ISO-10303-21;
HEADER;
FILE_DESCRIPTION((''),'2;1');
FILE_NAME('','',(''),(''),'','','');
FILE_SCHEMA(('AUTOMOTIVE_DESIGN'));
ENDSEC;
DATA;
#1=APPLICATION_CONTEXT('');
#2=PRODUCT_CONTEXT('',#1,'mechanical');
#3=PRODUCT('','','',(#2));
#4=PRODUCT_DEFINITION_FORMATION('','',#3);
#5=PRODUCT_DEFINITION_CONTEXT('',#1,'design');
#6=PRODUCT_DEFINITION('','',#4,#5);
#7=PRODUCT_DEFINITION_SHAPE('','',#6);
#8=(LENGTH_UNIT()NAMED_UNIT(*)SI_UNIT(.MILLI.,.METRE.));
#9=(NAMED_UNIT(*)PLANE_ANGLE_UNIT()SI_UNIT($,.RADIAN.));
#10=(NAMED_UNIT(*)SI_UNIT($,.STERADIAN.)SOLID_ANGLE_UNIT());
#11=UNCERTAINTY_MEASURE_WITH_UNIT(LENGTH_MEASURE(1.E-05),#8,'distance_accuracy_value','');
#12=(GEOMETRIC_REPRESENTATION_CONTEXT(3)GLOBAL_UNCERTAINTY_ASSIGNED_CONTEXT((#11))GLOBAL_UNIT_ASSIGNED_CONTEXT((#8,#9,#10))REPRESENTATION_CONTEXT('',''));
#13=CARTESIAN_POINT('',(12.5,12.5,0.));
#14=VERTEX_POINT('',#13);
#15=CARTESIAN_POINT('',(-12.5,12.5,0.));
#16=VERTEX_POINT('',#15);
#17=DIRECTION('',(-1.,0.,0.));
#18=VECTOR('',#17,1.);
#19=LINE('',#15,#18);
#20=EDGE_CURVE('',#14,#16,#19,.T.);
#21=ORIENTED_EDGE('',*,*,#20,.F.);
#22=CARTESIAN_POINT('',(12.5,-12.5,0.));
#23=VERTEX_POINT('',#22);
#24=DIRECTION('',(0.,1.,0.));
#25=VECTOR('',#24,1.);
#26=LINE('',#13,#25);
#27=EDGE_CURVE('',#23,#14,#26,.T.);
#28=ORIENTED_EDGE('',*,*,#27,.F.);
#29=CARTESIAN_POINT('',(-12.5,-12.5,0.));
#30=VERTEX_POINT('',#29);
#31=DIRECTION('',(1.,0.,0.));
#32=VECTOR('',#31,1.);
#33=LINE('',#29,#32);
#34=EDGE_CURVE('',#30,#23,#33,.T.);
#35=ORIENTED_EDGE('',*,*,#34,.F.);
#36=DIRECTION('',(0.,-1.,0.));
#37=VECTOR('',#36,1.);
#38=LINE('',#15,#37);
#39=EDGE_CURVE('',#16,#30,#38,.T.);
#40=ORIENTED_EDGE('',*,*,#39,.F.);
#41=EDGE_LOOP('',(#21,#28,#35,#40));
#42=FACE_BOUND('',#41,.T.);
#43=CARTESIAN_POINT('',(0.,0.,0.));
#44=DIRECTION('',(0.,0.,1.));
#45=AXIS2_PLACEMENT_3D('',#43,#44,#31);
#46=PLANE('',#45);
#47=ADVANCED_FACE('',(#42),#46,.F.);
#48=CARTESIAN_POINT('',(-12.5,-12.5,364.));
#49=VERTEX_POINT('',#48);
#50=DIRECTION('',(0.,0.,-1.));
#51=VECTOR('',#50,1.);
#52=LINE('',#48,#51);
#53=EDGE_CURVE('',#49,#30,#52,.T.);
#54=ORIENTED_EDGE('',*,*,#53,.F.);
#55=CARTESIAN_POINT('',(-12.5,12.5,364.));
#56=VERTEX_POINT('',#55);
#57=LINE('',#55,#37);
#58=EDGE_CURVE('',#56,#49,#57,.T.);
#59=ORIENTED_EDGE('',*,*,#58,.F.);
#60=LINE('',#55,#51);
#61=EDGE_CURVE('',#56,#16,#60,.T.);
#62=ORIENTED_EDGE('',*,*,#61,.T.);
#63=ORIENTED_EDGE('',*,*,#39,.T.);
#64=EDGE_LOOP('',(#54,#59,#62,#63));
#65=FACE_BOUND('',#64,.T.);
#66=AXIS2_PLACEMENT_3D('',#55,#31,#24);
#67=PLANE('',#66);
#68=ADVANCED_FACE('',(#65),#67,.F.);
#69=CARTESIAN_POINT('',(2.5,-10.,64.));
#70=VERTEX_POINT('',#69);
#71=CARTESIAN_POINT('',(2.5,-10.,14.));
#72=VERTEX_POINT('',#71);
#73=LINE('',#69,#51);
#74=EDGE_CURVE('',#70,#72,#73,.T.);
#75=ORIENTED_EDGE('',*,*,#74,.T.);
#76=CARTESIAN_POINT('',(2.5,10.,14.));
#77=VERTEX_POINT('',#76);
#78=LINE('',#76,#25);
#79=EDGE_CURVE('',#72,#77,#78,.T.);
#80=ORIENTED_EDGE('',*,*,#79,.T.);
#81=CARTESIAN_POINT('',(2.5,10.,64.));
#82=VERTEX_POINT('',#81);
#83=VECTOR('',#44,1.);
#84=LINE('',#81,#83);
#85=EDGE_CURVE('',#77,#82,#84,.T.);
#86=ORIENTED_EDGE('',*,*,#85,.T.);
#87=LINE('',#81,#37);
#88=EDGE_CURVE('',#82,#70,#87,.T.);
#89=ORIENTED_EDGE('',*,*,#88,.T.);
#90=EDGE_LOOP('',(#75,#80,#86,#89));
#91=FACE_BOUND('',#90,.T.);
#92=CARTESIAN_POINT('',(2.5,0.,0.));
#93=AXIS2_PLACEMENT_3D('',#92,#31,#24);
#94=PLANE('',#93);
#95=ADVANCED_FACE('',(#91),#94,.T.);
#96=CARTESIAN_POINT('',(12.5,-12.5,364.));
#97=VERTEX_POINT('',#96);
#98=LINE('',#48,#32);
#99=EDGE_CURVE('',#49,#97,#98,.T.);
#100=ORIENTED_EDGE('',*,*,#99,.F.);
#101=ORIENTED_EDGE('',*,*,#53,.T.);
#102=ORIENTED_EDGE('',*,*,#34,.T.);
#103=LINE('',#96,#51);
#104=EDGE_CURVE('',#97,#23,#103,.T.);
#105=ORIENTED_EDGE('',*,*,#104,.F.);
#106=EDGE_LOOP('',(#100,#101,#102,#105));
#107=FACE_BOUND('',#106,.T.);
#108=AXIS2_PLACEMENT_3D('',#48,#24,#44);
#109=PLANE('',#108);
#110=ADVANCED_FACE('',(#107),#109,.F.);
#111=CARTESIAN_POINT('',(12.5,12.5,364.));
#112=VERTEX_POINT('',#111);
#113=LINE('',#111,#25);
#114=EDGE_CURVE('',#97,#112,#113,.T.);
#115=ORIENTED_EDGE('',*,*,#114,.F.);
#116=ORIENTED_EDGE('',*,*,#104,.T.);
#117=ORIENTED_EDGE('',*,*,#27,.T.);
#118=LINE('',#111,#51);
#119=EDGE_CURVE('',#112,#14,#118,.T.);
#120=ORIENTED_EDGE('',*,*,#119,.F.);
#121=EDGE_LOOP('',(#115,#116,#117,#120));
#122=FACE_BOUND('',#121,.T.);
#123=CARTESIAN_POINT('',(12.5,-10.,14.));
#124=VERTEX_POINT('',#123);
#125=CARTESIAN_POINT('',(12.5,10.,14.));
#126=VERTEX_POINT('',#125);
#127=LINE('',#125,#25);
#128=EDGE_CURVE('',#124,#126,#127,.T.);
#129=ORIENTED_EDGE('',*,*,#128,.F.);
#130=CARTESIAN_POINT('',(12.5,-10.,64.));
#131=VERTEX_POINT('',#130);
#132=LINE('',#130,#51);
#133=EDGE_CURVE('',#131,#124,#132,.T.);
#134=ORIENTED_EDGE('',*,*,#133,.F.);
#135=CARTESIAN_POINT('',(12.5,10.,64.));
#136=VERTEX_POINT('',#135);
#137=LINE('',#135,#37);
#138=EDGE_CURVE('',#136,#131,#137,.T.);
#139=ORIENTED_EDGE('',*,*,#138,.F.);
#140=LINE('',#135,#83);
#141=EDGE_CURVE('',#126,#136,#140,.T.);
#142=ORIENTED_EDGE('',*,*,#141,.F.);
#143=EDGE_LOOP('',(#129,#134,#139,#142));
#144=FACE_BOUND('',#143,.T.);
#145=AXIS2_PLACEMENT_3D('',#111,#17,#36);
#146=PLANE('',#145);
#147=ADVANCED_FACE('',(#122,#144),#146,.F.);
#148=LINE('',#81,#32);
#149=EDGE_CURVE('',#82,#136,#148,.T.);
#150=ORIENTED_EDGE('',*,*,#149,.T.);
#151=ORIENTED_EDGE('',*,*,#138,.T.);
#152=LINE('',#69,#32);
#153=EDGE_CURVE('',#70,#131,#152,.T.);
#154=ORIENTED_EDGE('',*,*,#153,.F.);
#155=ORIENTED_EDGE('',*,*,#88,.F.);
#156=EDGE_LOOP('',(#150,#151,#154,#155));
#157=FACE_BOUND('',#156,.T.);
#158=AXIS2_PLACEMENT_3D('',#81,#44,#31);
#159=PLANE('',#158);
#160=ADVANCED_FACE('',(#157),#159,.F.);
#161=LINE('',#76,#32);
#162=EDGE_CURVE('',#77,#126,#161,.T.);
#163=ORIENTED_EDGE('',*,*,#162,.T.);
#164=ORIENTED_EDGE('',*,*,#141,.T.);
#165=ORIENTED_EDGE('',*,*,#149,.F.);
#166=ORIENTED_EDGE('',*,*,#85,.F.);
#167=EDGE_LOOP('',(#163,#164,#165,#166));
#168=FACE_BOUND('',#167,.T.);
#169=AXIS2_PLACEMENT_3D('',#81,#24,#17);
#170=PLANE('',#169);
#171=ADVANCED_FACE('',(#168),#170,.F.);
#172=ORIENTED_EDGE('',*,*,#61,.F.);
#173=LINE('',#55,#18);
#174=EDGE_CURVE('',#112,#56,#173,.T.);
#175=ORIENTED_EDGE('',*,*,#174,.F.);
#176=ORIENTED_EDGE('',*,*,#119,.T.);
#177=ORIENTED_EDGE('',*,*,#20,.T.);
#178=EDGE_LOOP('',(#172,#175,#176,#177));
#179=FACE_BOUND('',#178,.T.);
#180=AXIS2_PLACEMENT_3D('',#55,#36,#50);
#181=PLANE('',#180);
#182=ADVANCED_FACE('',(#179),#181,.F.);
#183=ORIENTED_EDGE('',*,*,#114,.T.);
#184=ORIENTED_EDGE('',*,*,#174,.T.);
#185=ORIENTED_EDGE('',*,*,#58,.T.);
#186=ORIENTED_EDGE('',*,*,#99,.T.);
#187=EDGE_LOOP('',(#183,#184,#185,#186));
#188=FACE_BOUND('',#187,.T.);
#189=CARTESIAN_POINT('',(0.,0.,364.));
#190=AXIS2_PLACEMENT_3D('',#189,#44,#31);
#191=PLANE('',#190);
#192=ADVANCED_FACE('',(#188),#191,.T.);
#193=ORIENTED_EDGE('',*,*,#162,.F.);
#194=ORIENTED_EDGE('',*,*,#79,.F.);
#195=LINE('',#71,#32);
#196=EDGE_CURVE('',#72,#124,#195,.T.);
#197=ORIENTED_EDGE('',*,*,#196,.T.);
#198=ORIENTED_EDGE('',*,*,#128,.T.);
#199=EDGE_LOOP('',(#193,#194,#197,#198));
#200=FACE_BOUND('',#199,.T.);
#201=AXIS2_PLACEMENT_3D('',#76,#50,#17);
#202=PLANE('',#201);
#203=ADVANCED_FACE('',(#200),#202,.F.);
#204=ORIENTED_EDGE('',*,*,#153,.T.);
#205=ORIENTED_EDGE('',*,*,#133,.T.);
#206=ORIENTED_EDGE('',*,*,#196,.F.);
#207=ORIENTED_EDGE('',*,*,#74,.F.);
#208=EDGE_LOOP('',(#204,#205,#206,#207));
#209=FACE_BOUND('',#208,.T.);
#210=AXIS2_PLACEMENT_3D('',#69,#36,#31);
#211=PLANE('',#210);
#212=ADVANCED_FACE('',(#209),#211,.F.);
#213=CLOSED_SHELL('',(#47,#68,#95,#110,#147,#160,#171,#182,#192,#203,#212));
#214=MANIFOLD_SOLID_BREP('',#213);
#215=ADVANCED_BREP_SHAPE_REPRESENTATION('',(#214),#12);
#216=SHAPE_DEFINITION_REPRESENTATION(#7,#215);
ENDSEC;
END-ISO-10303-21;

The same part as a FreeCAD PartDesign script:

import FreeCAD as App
import Part
import Sketcher

V = App.Vector
Q = App.Units.Quantity


def add_polygon(sketch, points):
    """Adds a closed chain of lines whose ends are joined by coincident constraints."""
    first, n = sketch.GeometryCount, len(points)
    for a, b in zip(points, points[1:] + points[:1]):
        sketch.addGeometry(Part.LineSegment(App.Vector(*a, 0), App.Vector(*b, 0)), False)
    for i in range(n):
        sketch.addConstraint(Sketcher.Constraint("Coincident", first + i, 2, first + (i + 1) % n, 1))

doc = App.newDocument("Part")
body = doc.addObject("PartDesign::Body", "Body")

# Sketch on XY plane
sketch1 = body.newObject("Sketcher::SketchObject", "Sketch")
sketch1.AttachmentSupport = (doc.getObject("XY_Plane"), [""])
sketch1.MapMode = "FlatFace"
add_polygon(sketch1, [(-12, 12), (-12, -12), (12, -12), (12, 12)])  # lines 0-3
sketch1.addConstraint(Sketcher.Constraint("Vertical", 0))
sketch1.addConstraint(Sketcher.Constraint("Horizontal", 1))
sketch1.addConstraint(Sketcher.Constraint("Vertical", 2))
sketch1.addConstraint(Sketcher.Constraint("Horizontal", 3))
sketch1.addConstraint(Sketcher.Constraint("Symmetric", 0, 2, 2, 2, -1, 1))
sketch1.addConstraint(Sketcher.Constraint("Equal", 3, 0))
sketch1.addConstraint(Sketcher.Constraint("DistanceX", 1, 1, 1, 2, Q("25 mm")))
pad1 = body.newObject("PartDesign::Pad", "Pad")
pad1.Profile = sketch1
pad1.Length = 364

# Sketch on YZ plane
sketch2 = body.newObject("Sketcher::SketchObject", "Sketch001")
sketch2.AttachmentSupport = (doc.getObject("YZ_Plane"), [""])
sketch2.MapMode = "FlatFace"
sketch2.AttachmentOffset = App.Placement(V(0, 0, 12.5), App.Rotation())
add_polygon(sketch2, [(10, 64), (-10, 64), (-10, 14), (10, 14)])  # lines 0-3
sketch2.addConstraint(Sketcher.Constraint("Horizontal", 0))
sketch2.addConstraint(Sketcher.Constraint("Vertical", 1))
sketch2.addConstraint(Sketcher.Constraint("Horizontal", 2))
sketch2.addConstraint(Sketcher.Constraint("Vertical", 3))
sketch2.addConstraint(Sketcher.Constraint("DistanceX", 0, 2, 0, 1, Q("20 mm")))
sketch2.addConstraint(Sketcher.Constraint("DistanceY", 1, 2, 1, 1, Q("50 mm")))
sketch2.addConstraint(Sketcher.Constraint("DistanceX", 0, 2, -1, 1, Q("10 mm")))
sketch2.addConstraint(Sketcher.Constraint("DistanceY", -1, 1, 0, 2, Q("64 mm")))
pocket1 = body.newObject("PartDesign::Pocket", "Pocket")
pocket1.Profile = sketch2
pocket1.Length = 10

doc.recompute()
